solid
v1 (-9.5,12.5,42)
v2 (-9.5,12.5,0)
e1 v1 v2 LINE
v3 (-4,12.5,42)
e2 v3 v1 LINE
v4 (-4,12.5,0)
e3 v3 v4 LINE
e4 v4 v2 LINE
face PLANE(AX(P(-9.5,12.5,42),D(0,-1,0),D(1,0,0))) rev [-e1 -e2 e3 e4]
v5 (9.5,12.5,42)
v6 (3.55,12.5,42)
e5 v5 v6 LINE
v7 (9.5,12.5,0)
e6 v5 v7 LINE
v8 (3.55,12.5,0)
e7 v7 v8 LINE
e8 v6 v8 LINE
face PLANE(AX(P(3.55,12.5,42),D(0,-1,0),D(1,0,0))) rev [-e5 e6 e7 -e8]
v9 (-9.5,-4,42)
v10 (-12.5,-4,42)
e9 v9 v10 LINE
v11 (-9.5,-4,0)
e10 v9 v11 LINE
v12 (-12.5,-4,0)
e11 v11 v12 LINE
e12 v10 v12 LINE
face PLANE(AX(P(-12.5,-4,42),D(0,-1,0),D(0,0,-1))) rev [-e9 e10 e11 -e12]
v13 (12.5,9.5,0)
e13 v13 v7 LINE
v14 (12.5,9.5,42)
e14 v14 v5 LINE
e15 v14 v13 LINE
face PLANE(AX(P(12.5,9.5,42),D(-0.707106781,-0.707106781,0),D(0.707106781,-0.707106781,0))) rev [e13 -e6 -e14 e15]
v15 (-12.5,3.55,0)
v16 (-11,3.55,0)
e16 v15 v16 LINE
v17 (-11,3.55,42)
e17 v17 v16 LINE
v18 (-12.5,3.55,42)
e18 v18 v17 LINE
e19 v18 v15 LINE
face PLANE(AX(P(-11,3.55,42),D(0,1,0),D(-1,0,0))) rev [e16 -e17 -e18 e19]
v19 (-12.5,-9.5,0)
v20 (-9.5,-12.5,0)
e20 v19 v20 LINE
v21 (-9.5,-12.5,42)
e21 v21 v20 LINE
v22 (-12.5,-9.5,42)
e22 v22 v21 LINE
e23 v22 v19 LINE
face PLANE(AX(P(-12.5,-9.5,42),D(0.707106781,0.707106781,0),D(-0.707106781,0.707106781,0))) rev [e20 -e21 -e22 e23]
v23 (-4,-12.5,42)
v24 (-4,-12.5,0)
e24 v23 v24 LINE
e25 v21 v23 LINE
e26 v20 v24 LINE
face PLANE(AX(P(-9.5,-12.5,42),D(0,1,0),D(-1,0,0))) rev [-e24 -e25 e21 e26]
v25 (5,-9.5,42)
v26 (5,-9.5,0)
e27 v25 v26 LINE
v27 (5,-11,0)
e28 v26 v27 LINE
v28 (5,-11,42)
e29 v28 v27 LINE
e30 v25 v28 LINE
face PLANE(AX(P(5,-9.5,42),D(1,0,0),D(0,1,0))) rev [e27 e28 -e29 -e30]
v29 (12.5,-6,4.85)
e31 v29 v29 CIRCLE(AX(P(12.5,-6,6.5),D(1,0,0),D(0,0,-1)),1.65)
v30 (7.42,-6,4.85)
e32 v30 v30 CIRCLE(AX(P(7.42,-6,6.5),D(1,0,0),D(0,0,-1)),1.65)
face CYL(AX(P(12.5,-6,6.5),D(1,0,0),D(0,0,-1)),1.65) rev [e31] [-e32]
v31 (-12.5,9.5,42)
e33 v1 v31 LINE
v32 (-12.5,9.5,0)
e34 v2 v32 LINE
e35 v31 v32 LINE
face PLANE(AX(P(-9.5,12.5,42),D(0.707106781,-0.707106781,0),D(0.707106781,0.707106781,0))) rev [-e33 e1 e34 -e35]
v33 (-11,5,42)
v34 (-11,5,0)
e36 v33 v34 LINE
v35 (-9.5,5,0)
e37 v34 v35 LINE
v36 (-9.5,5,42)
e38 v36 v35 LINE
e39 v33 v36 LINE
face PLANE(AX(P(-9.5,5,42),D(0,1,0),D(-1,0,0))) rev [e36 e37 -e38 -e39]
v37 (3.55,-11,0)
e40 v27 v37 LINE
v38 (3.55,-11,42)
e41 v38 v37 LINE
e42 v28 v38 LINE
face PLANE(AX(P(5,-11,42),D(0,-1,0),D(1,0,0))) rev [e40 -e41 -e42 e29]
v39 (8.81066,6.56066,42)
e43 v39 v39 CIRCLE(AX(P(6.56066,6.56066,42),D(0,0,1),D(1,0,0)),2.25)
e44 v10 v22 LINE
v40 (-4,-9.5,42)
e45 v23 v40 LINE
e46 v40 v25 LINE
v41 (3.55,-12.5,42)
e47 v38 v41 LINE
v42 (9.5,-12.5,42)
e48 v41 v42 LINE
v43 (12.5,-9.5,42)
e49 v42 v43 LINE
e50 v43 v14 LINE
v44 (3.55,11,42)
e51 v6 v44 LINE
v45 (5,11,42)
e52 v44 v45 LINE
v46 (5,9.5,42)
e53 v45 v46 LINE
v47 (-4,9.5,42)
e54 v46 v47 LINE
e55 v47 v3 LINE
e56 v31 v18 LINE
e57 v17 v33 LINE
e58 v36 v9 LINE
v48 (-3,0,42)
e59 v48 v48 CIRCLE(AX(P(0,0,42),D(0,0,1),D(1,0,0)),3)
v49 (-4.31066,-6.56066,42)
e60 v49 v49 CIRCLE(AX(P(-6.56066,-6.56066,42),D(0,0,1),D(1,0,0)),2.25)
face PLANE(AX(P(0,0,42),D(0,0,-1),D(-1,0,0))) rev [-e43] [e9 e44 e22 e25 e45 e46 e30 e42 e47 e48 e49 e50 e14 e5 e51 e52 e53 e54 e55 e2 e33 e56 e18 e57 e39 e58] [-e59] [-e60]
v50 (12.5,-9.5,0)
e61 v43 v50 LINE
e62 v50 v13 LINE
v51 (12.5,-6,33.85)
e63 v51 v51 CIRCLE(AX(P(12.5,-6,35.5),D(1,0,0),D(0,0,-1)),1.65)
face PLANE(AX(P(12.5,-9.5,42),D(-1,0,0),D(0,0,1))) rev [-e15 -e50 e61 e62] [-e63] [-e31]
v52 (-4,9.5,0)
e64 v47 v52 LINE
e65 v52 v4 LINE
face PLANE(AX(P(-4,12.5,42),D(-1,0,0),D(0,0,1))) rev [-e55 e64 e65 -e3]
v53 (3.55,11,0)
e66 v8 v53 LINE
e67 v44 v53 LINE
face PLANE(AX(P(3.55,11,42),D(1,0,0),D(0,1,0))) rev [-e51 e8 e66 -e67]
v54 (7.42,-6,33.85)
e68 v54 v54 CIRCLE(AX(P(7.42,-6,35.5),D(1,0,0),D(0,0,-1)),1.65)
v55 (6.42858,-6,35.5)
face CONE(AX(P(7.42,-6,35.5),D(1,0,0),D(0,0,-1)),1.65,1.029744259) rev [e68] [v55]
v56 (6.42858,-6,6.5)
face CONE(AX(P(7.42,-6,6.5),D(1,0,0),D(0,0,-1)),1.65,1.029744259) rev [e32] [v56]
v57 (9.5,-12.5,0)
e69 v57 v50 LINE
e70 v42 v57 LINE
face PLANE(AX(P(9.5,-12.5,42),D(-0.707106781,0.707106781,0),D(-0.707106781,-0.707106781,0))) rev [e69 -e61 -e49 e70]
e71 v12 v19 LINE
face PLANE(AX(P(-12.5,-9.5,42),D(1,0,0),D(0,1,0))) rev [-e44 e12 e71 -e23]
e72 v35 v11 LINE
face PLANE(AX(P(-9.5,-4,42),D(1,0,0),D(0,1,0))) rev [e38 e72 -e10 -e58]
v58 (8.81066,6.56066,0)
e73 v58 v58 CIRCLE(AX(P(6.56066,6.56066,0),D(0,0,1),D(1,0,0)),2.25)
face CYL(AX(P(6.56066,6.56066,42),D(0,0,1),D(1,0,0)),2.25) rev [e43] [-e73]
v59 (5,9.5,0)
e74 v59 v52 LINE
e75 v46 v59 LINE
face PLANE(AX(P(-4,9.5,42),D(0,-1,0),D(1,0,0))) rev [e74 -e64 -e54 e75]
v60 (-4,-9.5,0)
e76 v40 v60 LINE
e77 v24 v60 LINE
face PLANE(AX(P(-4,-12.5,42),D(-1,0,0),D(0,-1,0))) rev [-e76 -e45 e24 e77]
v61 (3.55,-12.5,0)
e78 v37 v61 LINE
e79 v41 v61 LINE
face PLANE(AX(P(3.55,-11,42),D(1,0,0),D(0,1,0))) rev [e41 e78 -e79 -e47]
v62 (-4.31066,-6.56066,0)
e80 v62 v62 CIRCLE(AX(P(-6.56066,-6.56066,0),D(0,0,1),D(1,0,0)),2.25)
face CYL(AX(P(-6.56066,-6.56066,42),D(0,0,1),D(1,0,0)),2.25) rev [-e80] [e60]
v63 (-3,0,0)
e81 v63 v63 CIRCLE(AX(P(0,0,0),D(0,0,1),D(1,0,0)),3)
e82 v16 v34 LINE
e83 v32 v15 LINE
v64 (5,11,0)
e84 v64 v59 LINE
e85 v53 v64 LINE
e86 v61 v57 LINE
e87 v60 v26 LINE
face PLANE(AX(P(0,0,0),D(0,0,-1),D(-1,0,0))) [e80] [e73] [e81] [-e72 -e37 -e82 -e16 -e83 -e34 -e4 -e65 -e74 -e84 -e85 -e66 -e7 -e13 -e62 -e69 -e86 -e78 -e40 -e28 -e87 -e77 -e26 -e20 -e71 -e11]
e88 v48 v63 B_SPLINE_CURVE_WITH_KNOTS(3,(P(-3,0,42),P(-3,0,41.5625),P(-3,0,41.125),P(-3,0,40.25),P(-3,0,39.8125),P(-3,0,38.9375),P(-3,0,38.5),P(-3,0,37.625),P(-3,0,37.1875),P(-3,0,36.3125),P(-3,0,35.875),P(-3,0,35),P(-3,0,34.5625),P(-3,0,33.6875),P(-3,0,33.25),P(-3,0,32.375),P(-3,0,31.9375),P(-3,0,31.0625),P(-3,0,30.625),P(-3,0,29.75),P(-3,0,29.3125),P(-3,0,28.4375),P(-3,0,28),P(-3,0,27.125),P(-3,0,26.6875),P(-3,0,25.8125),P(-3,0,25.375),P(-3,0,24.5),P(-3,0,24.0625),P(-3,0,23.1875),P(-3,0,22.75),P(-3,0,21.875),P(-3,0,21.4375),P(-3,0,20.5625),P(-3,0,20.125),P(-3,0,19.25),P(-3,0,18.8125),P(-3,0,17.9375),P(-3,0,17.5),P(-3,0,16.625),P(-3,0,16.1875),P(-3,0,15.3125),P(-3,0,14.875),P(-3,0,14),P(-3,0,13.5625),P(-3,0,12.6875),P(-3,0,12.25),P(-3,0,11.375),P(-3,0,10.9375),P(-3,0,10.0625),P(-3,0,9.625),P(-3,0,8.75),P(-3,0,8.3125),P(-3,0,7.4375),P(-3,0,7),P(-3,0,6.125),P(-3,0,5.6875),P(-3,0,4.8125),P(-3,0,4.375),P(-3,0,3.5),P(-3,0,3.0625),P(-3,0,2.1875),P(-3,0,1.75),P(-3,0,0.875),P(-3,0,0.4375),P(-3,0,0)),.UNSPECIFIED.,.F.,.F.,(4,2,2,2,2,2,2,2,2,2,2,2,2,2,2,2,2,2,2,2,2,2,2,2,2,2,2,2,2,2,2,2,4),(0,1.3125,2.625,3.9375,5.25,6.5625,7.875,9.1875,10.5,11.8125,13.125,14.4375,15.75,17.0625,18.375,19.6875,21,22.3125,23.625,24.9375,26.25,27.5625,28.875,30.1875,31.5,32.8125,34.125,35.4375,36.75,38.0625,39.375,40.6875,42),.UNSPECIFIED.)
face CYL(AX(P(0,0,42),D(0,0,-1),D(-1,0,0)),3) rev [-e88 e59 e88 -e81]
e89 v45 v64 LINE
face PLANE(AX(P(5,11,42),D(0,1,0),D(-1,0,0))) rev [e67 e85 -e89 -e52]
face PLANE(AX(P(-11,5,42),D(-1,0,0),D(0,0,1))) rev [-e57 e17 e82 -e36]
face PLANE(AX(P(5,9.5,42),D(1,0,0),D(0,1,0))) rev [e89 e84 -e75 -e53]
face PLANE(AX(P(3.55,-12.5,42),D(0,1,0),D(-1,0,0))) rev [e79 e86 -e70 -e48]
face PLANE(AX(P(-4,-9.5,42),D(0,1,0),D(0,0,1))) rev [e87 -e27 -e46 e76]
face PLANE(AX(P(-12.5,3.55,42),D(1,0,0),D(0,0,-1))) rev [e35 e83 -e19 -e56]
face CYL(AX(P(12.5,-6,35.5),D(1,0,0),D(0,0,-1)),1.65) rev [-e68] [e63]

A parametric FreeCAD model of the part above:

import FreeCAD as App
import Part
import Sketcher
from FreeCAD import Vector
Q = App.Units.Quantity


def add_polygon(sketch, points):
    """Adds a closed chain of lines whose ends are joined by coincident constraints."""
    first, n = sketch.GeometryCount, len(points)
    for a, b in zip(points, points[1:] + points[:1]):
        sketch.addGeometry(Part.LineSegment(App.Vector(*a, 0), App.Vector(*b, 0)), False)
    for i in range(n):
        sketch.addConstraint(Sketcher.Constraint("Coincident", first + i, 2, first + (i + 1) % n, 1))

doc = App.newDocument("Part")
body = doc.addObject("PartDesign::Body", "Body")

# Sketch on XY plane
sketch1 = body.newObject("Sketcher::SketchObject", "Sketch")
sketch1.AttachmentSupport = (doc.getObject("XY_Plane"), [""])
sketch1.MapMode = "FlatFace"
add_polygon(sketch1, [(-12.5, -9.5), (-9.5, -12.5), (-4, -12.5), (-4, -9.5), (5, -9.5), (5, -11), (3.5, -11), (3.5, -12.5), (9.5, -12.5), (12.5, -9.5), (12.5, 9.5), (9.5, 12.5), (3.5, 12.5), (3.5, 11), (5, 11), (5, 9.5), (-4, 9.5), (-4, 12.5), (-9.5, 12.5), (-12.5, 9.5), (-12.5, 3.5), (-11, 3.5), (-11, 5), (-9.5, 5), (-9.5, -4), (-12.5, -4)])  # lines 0-25
sketch1.addGeometry(Part.Circle(Vector(0, 0, 0), Vector(0, 0, 1), 3), False)  # 26
sketch1.addConstraint([
    Sketcher.Constraint("Horizontal", 1),
    Sketcher.Constraint("Vertical", 2),
    Sketcher.Constraint("Horizontal", 3),
    Sketcher.Constraint("Vertical", 4),
    Sketcher.Constraint("Horizontal", 5),
    Sketcher.Constraint("Vertical", 6),
    Sketcher.Constraint("Horizontal", 7),
    Sketcher.Constraint("Vertical", 9),
    Sketcher.Constraint("Horizontal", 11),
    Sketcher.Constraint("Vertical", 12),
    Sketcher.Constraint("Horizontal", 13),
    Sketcher.Constraint("Vertical", 14),
    Sketcher.Constraint("Horizontal", 15),
    Sketcher.Constraint("Vertical", 16),
    Sketcher.Constraint("Horizontal", 17),
    Sketcher.Constraint("Vertical", 19),
    Sketcher.Constraint("Horizontal", 20),
    Sketcher.Constraint("Vertical", 21),
    Sketcher.Constraint("Horizontal", 22),
    Sketcher.Constraint("Vertical", 23),
    Sketcher.Constraint("Horizontal", 24),
    Sketcher.Constraint("Vertical", 25),
    Sketcher.Constraint("Coincident", 26, 3, -1, 1),
    Sketcher.Constraint("Symmetric", 0, 2, 10, 2, -1, 1),
    Sketcher.Constraint("Symmetric", 7, 2, 17, 2, -1, 1),
    Sketcher.Constraint("Symmetric", 8, 2, 18, 2, -1, 1),
    Sketcher.Constraint("Symmetric", 9, 2, 25, 2, -1, 1),
    Sketcher.Constraint("Symmetric", 0, 2, 7, 2, -2),
    Sketcher.Constraint("Symmetric", 5, 2, 12, 2, -1),
    Sketcher.Constraint("Symmetric", 3, 2, 14, 2, -1),
    Sketcher.Constraint("Perpendicular", 0, 8),
    Sketcher.Constraint("Horizontal", 3, 2, 8, 2),
    Sketcher.Constraint("Horizontal", 9, 2, 14, 2),
    Sketcher.Constraint("Vertical", 2, 2, 15, 2),
    Sketcher.Constraint("Vertical", 17, 2, 22, 2),
    Sketcher.Constraint("Equal", 20, 22),
    Sketcher.Constraint("Equal", 22, 4),
    Sketcher.Constraint("Equal", 11, 19),
    Sketcher.Constraint("Equal", 13, 21),
    Sketcher.Constraint("Equal", 15, 23),
    Sketcher.Constraint("Equal", 17, 25),
    Sketcher.Constraint("Diameter", 26, Q("6 mm")),
    Sketcher.Constraint("DistanceX", 3, 1, 3, 2, Q("9 mm")),
    Sketcher.Constraint("DistanceX", 24, 2, 24, 1, Q("3 mm")),
    Sketcher.Constraint("DistanceY", 9, 1, 9, 2, Q("19 mm")),
    Sketcher.Constraint("DistanceX", 1, 1, 1, 2, Q("5.5 mm")),
    Sketcher.Constraint("DistanceX", 5, 2, 5, 1, Q("1.45 mm")),
])
pad1 = body.newObject("PartDesign::Pad", "Pad")
pad1.Profile = sketch1
pad1.Length = 42

# Sketch on XY plane
sketch2 = body.newObject("Sketcher::SketchObject", "Sketch001")
sketch2.AttachmentSupport = (doc.getObject("XY_Plane"), [""])
sketch2.MapMode = "FlatFace"
sketch2.AttachmentOffset = App.Placement(Vector(0, 0, 42), App.Rotation())
sketch2.addGeometry([
    Part.Circle(Vector(6.6, 6.6, 0), Vector(0, 0, 1), 2.2),
    Part.Circle(Vector(-6.6, -6.6, 0), Vector(0, 0, 1), 2.2),
], False)
sketch2.addConstraint([
    Sketcher.Constraint("Equal", 0, 1),
    Sketcher.Constraint("Symmetric", 0, 3, 1, 3, -1, 1),
    Sketcher.Constraint("Diameter", 0, Q("4.5 mm")),
    Sketcher.Constraint("DistanceX", -1, 1, 0, 3, Q("6.56066 mm")),
    Sketcher.Constraint("DistanceY", -1, 1, 0, 3, Q("6.56066 mm")),
])
doc.recompute()
hole = body.newObject("PartDesign::Hole", "Hole")
hole.Profile = sketch2
hole.ThreadType = "None"
hole.Diameter = 4.5
hole.DepthType = "ThroughAll"

# Sketch on YZ plane
sketch3 = body.newObject("Sketcher::SketchObject", "Sketch002")
sketch3.AttachmentSupport = (doc.getObject("YZ_Plane"), [""])
sketch3.MapMode = "FlatFace"
sketch3.AttachmentOffset = App.Placement(Vector(0, 0, 12.5), App.Rotation())
sketch3.addGeometry([
    Part.Circle(Vector(-6, 35.5, 0), Vector(0, 0, 1), 1.6),
    Part.Circle(Vector(-6, 6.5, 0), Vector(0, 0, 1), 1.6),
], False)
sketch3.addConstraint([
    Sketcher.Constraint("Equal", 0, 1),
    Sketcher.Constraint("Vertical", 0, 3, 1, 3),
    Sketcher.Constraint("Diameter", 0, Q("3.3 mm")),
    Sketcher.Constraint("DistanceX", 0, 3, -1, 1, Q("6 mm")),
    Sketcher.Constraint("DistanceY", 1, 3, 0, 3, Q("29 mm")),
    Sketcher.Constraint("DistanceY", -1, 1, 0, 3, Q("35.5 mm")),
])
doc.recompute()
hole2 = body.newObject("PartDesign::Hole", "Hole001")
hole2.Profile = sketch3
hole2.ThreadType = "None"
hole2.Diameter = 3.3
hole2.DepthType = "Dimension"
hole2.Depth = 5.08
hole2.DrillPoint = "Angled"
hole2.DrillPointAngle = 118

doc.recompute()
